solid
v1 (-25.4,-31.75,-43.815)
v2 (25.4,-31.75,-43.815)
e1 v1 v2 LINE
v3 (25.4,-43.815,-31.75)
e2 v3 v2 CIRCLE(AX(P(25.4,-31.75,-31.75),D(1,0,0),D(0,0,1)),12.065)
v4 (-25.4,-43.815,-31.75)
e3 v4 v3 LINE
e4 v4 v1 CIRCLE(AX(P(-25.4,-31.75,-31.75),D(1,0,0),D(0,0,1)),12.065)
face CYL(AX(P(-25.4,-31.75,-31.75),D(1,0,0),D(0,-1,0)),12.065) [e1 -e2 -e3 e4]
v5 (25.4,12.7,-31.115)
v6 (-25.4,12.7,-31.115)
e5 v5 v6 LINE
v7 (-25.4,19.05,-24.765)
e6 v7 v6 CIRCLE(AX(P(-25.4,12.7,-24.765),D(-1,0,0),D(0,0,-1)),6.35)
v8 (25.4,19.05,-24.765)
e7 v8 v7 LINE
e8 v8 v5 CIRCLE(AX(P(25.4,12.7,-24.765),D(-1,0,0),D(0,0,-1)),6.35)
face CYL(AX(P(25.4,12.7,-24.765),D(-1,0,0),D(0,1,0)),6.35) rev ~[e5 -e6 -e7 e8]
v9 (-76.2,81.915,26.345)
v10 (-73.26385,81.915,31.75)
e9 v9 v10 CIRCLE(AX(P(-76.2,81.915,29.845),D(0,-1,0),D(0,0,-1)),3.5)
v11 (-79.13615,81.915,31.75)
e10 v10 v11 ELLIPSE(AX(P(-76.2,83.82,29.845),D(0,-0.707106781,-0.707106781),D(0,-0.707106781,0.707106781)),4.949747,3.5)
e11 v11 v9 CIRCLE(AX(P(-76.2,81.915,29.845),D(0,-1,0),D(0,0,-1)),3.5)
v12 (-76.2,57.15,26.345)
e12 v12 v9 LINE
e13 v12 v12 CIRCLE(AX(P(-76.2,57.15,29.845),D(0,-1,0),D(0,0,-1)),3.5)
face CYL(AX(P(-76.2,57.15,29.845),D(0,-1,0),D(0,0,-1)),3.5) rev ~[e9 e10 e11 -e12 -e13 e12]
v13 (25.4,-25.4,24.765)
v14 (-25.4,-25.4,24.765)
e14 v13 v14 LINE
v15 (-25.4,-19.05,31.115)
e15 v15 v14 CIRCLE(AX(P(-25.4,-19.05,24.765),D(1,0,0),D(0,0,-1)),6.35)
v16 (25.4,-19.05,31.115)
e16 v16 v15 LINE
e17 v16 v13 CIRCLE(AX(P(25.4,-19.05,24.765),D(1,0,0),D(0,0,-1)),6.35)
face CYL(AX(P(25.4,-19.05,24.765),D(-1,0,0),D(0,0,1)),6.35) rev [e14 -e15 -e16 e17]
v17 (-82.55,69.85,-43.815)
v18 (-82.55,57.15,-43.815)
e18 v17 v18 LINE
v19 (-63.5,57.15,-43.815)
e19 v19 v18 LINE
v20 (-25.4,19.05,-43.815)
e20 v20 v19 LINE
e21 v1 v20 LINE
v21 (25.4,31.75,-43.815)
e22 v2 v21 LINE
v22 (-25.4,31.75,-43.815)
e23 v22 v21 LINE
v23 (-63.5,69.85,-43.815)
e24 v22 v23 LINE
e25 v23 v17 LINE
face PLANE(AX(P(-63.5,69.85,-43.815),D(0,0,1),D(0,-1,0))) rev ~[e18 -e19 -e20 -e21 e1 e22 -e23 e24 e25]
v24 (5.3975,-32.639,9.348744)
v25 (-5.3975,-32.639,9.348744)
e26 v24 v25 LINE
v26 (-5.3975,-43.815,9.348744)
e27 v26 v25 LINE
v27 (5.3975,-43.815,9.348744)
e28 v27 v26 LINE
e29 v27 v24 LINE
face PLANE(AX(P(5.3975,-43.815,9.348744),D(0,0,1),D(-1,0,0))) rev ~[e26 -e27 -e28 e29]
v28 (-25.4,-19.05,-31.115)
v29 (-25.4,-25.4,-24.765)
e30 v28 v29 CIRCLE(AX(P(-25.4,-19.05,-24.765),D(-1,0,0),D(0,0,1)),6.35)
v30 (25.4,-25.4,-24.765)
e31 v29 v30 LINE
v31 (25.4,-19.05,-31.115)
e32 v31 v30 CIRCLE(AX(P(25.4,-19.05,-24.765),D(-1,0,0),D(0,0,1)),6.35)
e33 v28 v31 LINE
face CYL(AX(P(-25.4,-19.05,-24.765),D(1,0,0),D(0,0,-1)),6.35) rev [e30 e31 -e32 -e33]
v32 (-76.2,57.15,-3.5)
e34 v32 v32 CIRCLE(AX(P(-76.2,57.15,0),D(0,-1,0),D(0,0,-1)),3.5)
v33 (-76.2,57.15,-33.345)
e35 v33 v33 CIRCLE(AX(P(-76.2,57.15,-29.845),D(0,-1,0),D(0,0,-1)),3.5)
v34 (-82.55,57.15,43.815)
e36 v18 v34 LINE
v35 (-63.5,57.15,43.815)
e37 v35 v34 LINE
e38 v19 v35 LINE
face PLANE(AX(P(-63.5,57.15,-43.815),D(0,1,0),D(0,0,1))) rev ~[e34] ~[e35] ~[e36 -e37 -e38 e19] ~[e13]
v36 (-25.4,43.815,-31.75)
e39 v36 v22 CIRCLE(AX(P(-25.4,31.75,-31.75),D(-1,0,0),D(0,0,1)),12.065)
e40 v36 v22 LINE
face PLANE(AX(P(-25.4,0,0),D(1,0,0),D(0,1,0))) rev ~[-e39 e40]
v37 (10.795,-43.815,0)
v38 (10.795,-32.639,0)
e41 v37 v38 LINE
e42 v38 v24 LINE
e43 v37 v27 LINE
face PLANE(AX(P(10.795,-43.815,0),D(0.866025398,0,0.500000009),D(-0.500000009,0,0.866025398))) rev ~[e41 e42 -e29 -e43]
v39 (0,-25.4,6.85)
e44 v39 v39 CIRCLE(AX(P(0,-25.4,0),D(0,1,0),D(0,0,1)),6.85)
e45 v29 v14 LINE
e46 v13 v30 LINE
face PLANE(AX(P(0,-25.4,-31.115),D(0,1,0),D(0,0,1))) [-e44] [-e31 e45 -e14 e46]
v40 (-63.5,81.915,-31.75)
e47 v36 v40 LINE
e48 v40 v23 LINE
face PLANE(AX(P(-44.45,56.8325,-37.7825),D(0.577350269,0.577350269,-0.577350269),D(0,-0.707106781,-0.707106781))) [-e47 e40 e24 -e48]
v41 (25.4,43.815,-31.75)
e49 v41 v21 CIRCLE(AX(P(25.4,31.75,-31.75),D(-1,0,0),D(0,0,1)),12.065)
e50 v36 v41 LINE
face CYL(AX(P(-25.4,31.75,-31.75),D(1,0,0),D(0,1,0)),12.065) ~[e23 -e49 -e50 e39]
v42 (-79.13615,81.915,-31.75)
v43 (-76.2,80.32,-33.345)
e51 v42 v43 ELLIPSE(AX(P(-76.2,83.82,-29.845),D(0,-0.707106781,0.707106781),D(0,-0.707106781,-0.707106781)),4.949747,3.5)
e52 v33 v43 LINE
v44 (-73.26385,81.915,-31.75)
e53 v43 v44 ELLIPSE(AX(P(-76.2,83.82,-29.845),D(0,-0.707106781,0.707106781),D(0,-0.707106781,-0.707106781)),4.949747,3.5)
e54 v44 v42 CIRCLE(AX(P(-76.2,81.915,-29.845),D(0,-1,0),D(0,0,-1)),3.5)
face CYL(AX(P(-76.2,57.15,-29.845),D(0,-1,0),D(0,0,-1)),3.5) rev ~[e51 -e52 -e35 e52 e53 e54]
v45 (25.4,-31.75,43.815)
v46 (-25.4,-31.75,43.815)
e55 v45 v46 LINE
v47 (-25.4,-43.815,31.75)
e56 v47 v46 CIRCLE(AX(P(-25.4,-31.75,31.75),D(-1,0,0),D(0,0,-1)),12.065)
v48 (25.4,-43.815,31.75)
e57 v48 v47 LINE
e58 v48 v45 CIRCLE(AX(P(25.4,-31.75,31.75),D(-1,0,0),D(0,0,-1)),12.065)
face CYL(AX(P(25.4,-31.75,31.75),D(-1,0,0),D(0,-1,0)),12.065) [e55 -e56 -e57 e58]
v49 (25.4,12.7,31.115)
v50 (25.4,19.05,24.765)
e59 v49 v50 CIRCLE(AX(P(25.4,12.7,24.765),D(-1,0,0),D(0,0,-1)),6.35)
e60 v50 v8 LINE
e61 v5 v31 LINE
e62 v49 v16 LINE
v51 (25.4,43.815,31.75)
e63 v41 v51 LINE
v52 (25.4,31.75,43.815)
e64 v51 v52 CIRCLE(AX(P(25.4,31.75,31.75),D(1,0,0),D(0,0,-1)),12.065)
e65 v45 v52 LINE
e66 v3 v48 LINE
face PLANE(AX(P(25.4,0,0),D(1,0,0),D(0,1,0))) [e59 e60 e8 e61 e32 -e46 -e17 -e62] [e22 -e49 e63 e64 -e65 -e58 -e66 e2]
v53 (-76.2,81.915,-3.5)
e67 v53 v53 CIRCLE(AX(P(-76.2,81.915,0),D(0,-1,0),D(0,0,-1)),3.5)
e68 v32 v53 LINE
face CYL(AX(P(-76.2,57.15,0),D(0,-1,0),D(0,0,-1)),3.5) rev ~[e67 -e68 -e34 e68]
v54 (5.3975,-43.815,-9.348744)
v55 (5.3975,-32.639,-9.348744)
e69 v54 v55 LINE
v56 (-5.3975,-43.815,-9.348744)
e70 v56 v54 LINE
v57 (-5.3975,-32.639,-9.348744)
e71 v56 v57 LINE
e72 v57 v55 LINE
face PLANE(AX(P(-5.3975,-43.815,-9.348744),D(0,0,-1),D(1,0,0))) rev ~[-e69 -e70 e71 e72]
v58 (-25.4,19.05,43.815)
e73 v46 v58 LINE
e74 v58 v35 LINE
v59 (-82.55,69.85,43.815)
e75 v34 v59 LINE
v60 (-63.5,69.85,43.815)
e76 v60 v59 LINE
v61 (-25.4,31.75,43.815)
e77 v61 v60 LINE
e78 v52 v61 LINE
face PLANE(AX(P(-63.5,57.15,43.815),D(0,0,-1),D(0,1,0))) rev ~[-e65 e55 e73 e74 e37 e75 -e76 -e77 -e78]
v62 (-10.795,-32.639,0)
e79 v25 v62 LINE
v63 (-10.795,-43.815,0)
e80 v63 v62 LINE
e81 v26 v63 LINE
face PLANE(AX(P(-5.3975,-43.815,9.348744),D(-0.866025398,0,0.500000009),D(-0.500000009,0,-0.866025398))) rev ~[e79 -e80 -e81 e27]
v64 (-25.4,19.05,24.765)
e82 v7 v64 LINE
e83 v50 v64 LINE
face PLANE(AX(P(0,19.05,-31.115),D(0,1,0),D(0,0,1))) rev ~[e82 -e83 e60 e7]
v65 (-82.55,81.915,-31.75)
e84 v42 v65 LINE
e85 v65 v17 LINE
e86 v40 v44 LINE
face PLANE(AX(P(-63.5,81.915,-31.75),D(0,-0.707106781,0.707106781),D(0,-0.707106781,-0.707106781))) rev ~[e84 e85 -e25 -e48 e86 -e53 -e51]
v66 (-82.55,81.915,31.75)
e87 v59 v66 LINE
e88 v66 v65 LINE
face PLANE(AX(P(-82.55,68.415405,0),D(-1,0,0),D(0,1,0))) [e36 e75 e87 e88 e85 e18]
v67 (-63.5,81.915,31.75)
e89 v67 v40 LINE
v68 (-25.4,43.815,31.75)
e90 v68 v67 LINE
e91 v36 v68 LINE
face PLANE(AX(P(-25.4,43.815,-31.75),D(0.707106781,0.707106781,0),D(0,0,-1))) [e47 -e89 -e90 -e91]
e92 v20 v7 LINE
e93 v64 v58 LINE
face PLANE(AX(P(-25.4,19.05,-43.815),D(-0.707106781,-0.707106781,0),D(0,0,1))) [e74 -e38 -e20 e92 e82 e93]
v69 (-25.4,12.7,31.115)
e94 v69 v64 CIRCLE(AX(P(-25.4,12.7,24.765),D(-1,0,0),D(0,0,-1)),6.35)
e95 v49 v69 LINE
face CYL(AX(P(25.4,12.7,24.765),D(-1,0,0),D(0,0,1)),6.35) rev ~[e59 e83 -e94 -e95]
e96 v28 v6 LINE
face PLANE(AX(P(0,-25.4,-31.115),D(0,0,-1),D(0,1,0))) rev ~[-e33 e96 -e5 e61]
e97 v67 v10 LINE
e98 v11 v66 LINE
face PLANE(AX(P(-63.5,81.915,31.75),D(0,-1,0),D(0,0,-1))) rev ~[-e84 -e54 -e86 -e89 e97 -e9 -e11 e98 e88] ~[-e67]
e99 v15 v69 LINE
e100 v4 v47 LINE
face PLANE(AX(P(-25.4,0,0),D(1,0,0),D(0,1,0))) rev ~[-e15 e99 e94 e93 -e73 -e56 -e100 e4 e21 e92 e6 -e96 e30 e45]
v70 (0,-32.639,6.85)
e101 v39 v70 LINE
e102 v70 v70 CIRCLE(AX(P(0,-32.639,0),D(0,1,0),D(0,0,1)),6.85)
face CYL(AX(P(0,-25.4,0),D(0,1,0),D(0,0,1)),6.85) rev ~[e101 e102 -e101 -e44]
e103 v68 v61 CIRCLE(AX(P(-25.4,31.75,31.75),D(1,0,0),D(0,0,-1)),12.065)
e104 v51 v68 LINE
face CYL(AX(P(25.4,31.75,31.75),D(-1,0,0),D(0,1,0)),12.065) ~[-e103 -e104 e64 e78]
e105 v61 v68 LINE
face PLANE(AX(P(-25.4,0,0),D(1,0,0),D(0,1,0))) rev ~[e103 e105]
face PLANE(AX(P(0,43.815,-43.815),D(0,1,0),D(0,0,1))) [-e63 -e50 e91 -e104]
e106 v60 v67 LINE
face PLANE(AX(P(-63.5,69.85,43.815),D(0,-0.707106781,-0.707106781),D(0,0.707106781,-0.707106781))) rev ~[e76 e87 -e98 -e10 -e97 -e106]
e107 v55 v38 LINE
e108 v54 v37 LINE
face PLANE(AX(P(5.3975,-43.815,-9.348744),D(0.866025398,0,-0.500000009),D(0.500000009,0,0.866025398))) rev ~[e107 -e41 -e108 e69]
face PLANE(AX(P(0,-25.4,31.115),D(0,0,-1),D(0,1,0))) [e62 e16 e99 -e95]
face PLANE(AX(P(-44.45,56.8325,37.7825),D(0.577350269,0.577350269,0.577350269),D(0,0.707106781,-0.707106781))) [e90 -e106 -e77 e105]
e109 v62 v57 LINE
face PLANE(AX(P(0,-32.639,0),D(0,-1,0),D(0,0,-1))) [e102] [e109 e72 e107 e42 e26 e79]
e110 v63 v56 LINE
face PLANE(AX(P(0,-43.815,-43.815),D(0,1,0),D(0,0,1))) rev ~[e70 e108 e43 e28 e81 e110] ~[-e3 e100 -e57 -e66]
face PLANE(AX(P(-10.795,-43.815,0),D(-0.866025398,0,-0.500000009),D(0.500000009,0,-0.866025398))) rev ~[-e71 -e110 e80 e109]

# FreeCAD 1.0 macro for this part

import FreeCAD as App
import Part
import Sketcher
Q = App.Units.Quantity


def edges_at(feature, points):
    """Names of the edges that pass closest to the given points."""
    edges = feature.Shape.Edges
    near = lambda p: min(range(len(edges)), key=lambda i: edges[i].distToShape(Part.Vertex(*p))[0])
    return sorted({f"Edge{near(p) + 1}" for p in points})


def add_polygon(sketch, points):
    """Adds a closed chain of lines whose ends are joined by coincident constraints."""
    first, n = sketch.GeometryCount, len(points)
    for a, b in zip(points, points[1:] + points[:1]):
        sketch.addGeometry(Part.LineSegment(App.Vector(*a, 0), App.Vector(*b, 0)), False)
    for i in range(n):
        sketch.addConstraint(Sketcher.Constraint("Coincident", first + i, 2, first + (i + 1) % n, 1))

doc = App.newDocument("Part")
body = doc.addObject("PartDesign::Body", "Body")

# Sketch on YZ plane
sketch1 = body.newObject("Sketcher::SketchObject", "Sketch")
sketch1.AttachmentSupport = (doc.getObject("YZ_Plane"), [""])
sketch1.MapMode = "FlatFace"
add_polygon(sketch1, [(-43.815, 43.815), (-43.815, -43.815), (43.815, -43.815), (43.815, 43.815)])  # lines 0-3
sketch1.addConstraint(Sketcher.Constraint("Vertical", 0))
sketch1.addConstraint(Sketcher.Constraint("Horizontal", 1))
sketch1.addConstraint(Sketcher.Constraint("Vertical", 2))
sketch1.addConstraint(Sketcher.Constraint("Horizontal", 3))
sketch1.addConstraint(Sketcher.Constraint("Symmetric", 0, 2, 2, 2, -1, 1))
sketch1.addConstraint(Sketcher.Constraint("Equal", 3, 0))
sketch1.addConstraint(Sketcher.Constraint("DistanceX", 1, 1, 1, 2, Q("3.45 in")))
pad1 = body.newObject("PartDesign::Pad", "Pad")
pad1.Profile = sketch1
pad1.Length = Q("2 in")
pad1.Midplane = True
doc.recompute()

fillet = body.newObject("PartDesign::Fillet", "Fillet")
fillet.Base = (pad1, edges_at(pad1, [
    (0, -43.815, 43.815),
    (0, -43.815, -43.815),
    (0, 43.815, -43.815),
    (0, 43.815, 43.815),
]))
fillet.Radius = Q("0.475 in")

# Sketch on YZ plane
sketch2 = body.newObject("Sketcher::SketchObject", "Sketch001")
sketch2.AttachmentSupport = (doc.getObject("YZ_Plane"), [""])
sketch2.MapMode = "FlatFace"
add_polygon(sketch2, [(-25.4, 31.115), (-25.4, -31.115), (19.05, -31.115), (19.05, 31.115)])  # lines 0-3
sketch2.addConstraint(Sketcher.Constraint("Vertical", 0))
sketch2.addConstraint(Sketcher.Constraint("Horizontal", 1))
sketch2.addConstraint(Sketcher.Constraint("Vertical", 2))
sketch2.addConstraint(Sketcher.Constraint("Horizontal", 3))
sketch2.addConstraint(Sketcher.Constraint("DistanceX", 0, 2, -1, 1, Q("1 in")))
sketch2.addConstraint(Sketcher.Constraint("DistanceX", 1, 1, 1, 2, Q("1.75 in")))
sketch2.addConstraint(Sketcher.Constraint("DistanceY", 0, 2, 0, 1, Q("2.45 in")))
sketch2.addConstraint(Sketcher.Constraint("DistanceY", 0, 2, -1, 1, Q("1.225 in")))
pocket1 = body.newObject("PartDesign::Pocket", "Pocket")
pocket1.Profile = sketch2
pocket1.Type = "ThroughAll"
pocket1.Midplane = True
doc.recompute()

fillet2 = body.newObject("PartDesign::Fillet", "Fillet001")
fillet2.Base = (pocket1, edges_at(pocket1, [
    (0, -25.4, -31.115),
    (0, 19.05, -31.115),
    (0, 19.05, 31.115),
    (0, -25.4, 31.115),
]))
fillet2.Radius = Q("0.25 in")

# Sketch on XZ plane
sketch3 = body.newObject("Sketcher::SketchObject", "Sketch002")
sketch3.AttachmentSupport = (doc.getObject("XZ_Plane"), [""])
sketch3.MapMode = "FlatFace"
sketch3.AttachmentOffset = App.Placement(App.Vector(0, 0, 1 * 25.4), App.Rotation())
sketch3.addGeometry(Part.Circle(App.Vector(0, 0, 0), App.Vector(0, 0, 1), 6.85), False)
sketch3.addConstraint(Sketcher.Constraint("Coincident", 0, 3, -1, 1))
sketch3.addConstraint(Sketcher.Constraint("Diameter", 0, Q("13.7 mm")))
pocket2 = body.newObject("PartDesign::Pocket", "Pocket001")
pocket2.Profile = sketch3
pocket2.Type = "ThroughAll"
pocket2.Reversed = True

# Sketch on XZ plane
sketch4 = body.newObject("Sketcher::SketchObject", "Sketch003")
sketch4.AttachmentSupport = (doc.getObject("XZ_Plane"), [""])
sketch4.MapMode = "FlatFace"
sketch4.AttachmentOffset = App.Placement(App.Vector(0, 0, 1.725 * 25.4), App.Rotation())
add_polygon(sketch4, [(-5.3975, -9.348744), (5.3975, -9.348744), (10.795, 0), (5.3975, 9.348744), (-5.3975, 9.348744), (-10.795, 0)])  # lines 0-5
sketch4.addConstraint(Sketcher.Constraint("Horizontal", 0))
sketch4.addConstraint(Sketcher.Constraint("Horizontal", 3))
sketch4.addConstraint(Sketcher.Constraint("Symmetric", 0, 2, 3, 2, -1, 1))
sketch4.addConstraint(Sketcher.Constraint("Symmetric", 1, 2, 4, 2, -1, 1))
sketch4.addConstraint(Sketcher.Constraint("PointOnObject", 1, 2, -1))
sketch4.addConstraint(Sketcher.Constraint("Parallel", 2, 5))
sketch4.addConstraint(Sketcher.Constraint("Vertical", 0, 2, 2, 2))
sketch4.addConstraint(Sketcher.Constraint("Angle", 1, Q("59.999999 deg")))
sketch4.addConstraint(Sketcher.Constraint("DistanceX", 0, 1, 0, 2, Q("0.425 in")))
sketch4.addConstraint(Sketcher.Constraint("DistanceX", 4, 2, 1, 2, Q("0.85 in")))
pocket3 = body.newObject("PartDesign::Pocket", "Pocket002")
pocket3.Profile = sketch4
pocket3.Length = Q("0.44 in")

# Sketch on YZ plane
sketch5 = body.newObject("Sketcher::SketchObject", "Sketch004")
sketch5.AttachmentSupport = (doc.getObject("YZ_Plane"), [""])
sketch5.MapMode = "FlatFace"
sketch5.AttachmentOffset = App.Placement(App.Vector(0, 0, -1 * 25.4), App.Rotation())
add_polygon(sketch5, [(31.75, -43.815), (19.05, -43.815), (19.05, 43.815), (31.75, 43.815), (43.815, 31.75), (43.815, -31.75)])  # lines 0-5
sketch5.addConstraint(Sketcher.Constraint("Horizontal", 0))
sketch5.addConstraint(Sketcher.Constraint("Vertical", 1))
sketch5.addConstraint(Sketcher.Constraint("Horizontal", 2))
sketch5.addConstraint(Sketcher.Constraint("Vertical", 4))
sketch5.addConstraint(Sketcher.Constraint("Symmetric", 2, 2, 5, 2, -1))
sketch5.addConstraint(Sketcher.Constraint("Perpendicular", 3, 5))
sketch5.addConstraint(Sketcher.Constraint("Equal", 3, 5))
sketch5.addConstraint(Sketcher.Constraint("DistanceX", 0, 2, 0, 1, Q("0.5 in")))
sketch5.addConstraint(Sketcher.Constraint("DistanceY", 4, 2, 4, 1, Q("2.5 in")))
sketch5.addConstraint(Sketcher.Constraint("DistanceY", 1, 1, 1, 2, Q("3.45 in")))
sketch5.addConstraint(Sketcher.Constraint("DistanceX", -1, 1, 0, 2, Q("0.75 in")))

# Sketch on an angled plane
sketch6 = body.newObject("Sketcher::SketchObject", "Sketch005")
sketch6.Placement = App.Placement(App.Vector(3.175, 3.175, 0), App.Rotation(App.Vector(-0.707106781, 0.707106781, 0), App.Vector(0, 0, 0.999999999), App.Vector(0.707106781, 0.707106781, 0), "ZXY"))
sketch6.addGeometry(Part.LineSegment(App.Vector(40.411153, 43.815, 0), App.Vector(94.292689, 43.815, 0)), False)
sketch6.addConstraint(Sketcher.Constraint("Horizontal", 0))
sketch6.addConstraint(Sketcher.Constraint("DistanceY", -1, 1, 0, 1, Q("1.725 in")))
sketch6.addConstraint(Sketcher.Constraint("DistanceX", 0, 1, 0, 2, Q("53.881537 mm")))
sketch6.addConstraint(Sketcher.Constraint("DistanceX", -1, 1, 0, 2, Q("94.292689 mm")))
doc.recompute()

additivepipe = body.newObject("PartDesign::AdditivePipe", "AdditivePipe")
additivepipe.Profile = sketch5
additivepipe.Spine = (sketch6, ["Edge1"])

# Sketch on YZ plane
sketch7 = body.newObject("Sketcher::SketchObject", "Sketch006")
sketch7.AttachmentSupport = (doc.getObject("YZ_Plane"), [""])
sketch7.MapMode = "FlatFace"
sketch7.AttachmentOffset = App.Placement(App.Vector(0, 0, -2.5 * 25.4), App.Rotation())
add_polygon(sketch7, [(57.15, 43.815), (69.85, 43.815), (81.915, 31.75), (81.915, -31.75), (69.85, -43.815), (57.15, -43.815)])  # lines 0-5
sketch7.addConstraint(Sketcher.Constraint("Horizontal", 0))
sketch7.addConstraint(Sketcher.Constraint("Vertical", 2))
sketch7.addConstraint(Sketcher.Constraint("Horizontal", 4))
sketch7.addConstraint(Sketcher.Constraint("Vertical", 5))
sketch7.addConstraint(Sketcher.Constraint("Symmetric", 0, 2, 3, 2, -1))
sketch7.addConstraint(Sketcher.Constraint("Perpendicular", 1, 3))
sketch7.addConstraint(Sketcher.Constraint("Equal", 1, 3))
sketch7.addConstraint(Sketcher.Constraint("DistanceX", 0, 1, 0, 2, Q("0.5 in")))
sketch7.addConstraint(Sketcher.Constraint("DistanceY", 2, 2, 2, 1, Q("2.5 in")))
sketch7.addConstraint(Sketcher.Constraint("DistanceY", 5, 1, 5, 2, Q("3.45 in")))
sketch7.addConstraint(Sketcher.Constraint("DistanceX", -1, 1, 0, 2, Q("2.75 in")))
pad2 = body.newObject("PartDesign::Pad", "Pad001")
pad2.Profile = sketch7
pad2.Length = Q("0.75 in")
pad2.Reversed = True

# Sketch on XZ plane
sketch8 = body.newObject("Sketcher::SketchObject", "Sketch007")
sketch8.AttachmentSupport = (doc.getObject("XZ_Plane"), [""])
sketch8.MapMode = "FlatFace"
sketch8.AttachmentOffset = App.Placement(App.Vector(0, 0, -2.25 * 25.4), App.Rotation())
sketch8.addGeometry(Part.Circle(App.Vector(-76.2, 29.845, 0), App.Vector(0, 0, 1), 3.5), False)
sketch8.addGeometry(Part.Circle(App.Vector(-76.2, 0, 0), App.Vector(0, 0, 1), 3.5), False)
sketch8.addGeometry(Part.Circle(App.Vector(-76.2, -29.845, 0), App.Vector(0, 0, 1), 3.5), False)
sketch8.addConstraint(Sketcher.Constraint("Equal", 0, 1))
sketch8.addConstraint(Sketcher.Constraint("Equal", 1, 2))
sketch8.addConstraint(Sketcher.Constraint("Symmetric", 0, 3, 2, 3, -1))
sketch8.addConstraint(Sketcher.Constraint("PointOnObject", 1, 3, -1))
sketch8.addConstraint(Sketcher.Constraint("Vertical", 0, 3, 1, 3))
sketch8.addConstraint(Sketcher.Constraint("DistanceX", 0, 3, -1, 1, Q("3 in")))
sketch8.addConstraint(Sketcher.Constraint("Diameter", 0, Q("7 mm")))
sketch8.addConstraint(Sketcher.Constraint("DistanceY", 2, 3, 0, 3, Q("2.35 in")))
pocket4 = body.newObject("PartDesign::Pocket", "Pocket003")
pocket4.Profile = sketch8
pocket4.Type = "ThroughAll"

doc.recompute()
